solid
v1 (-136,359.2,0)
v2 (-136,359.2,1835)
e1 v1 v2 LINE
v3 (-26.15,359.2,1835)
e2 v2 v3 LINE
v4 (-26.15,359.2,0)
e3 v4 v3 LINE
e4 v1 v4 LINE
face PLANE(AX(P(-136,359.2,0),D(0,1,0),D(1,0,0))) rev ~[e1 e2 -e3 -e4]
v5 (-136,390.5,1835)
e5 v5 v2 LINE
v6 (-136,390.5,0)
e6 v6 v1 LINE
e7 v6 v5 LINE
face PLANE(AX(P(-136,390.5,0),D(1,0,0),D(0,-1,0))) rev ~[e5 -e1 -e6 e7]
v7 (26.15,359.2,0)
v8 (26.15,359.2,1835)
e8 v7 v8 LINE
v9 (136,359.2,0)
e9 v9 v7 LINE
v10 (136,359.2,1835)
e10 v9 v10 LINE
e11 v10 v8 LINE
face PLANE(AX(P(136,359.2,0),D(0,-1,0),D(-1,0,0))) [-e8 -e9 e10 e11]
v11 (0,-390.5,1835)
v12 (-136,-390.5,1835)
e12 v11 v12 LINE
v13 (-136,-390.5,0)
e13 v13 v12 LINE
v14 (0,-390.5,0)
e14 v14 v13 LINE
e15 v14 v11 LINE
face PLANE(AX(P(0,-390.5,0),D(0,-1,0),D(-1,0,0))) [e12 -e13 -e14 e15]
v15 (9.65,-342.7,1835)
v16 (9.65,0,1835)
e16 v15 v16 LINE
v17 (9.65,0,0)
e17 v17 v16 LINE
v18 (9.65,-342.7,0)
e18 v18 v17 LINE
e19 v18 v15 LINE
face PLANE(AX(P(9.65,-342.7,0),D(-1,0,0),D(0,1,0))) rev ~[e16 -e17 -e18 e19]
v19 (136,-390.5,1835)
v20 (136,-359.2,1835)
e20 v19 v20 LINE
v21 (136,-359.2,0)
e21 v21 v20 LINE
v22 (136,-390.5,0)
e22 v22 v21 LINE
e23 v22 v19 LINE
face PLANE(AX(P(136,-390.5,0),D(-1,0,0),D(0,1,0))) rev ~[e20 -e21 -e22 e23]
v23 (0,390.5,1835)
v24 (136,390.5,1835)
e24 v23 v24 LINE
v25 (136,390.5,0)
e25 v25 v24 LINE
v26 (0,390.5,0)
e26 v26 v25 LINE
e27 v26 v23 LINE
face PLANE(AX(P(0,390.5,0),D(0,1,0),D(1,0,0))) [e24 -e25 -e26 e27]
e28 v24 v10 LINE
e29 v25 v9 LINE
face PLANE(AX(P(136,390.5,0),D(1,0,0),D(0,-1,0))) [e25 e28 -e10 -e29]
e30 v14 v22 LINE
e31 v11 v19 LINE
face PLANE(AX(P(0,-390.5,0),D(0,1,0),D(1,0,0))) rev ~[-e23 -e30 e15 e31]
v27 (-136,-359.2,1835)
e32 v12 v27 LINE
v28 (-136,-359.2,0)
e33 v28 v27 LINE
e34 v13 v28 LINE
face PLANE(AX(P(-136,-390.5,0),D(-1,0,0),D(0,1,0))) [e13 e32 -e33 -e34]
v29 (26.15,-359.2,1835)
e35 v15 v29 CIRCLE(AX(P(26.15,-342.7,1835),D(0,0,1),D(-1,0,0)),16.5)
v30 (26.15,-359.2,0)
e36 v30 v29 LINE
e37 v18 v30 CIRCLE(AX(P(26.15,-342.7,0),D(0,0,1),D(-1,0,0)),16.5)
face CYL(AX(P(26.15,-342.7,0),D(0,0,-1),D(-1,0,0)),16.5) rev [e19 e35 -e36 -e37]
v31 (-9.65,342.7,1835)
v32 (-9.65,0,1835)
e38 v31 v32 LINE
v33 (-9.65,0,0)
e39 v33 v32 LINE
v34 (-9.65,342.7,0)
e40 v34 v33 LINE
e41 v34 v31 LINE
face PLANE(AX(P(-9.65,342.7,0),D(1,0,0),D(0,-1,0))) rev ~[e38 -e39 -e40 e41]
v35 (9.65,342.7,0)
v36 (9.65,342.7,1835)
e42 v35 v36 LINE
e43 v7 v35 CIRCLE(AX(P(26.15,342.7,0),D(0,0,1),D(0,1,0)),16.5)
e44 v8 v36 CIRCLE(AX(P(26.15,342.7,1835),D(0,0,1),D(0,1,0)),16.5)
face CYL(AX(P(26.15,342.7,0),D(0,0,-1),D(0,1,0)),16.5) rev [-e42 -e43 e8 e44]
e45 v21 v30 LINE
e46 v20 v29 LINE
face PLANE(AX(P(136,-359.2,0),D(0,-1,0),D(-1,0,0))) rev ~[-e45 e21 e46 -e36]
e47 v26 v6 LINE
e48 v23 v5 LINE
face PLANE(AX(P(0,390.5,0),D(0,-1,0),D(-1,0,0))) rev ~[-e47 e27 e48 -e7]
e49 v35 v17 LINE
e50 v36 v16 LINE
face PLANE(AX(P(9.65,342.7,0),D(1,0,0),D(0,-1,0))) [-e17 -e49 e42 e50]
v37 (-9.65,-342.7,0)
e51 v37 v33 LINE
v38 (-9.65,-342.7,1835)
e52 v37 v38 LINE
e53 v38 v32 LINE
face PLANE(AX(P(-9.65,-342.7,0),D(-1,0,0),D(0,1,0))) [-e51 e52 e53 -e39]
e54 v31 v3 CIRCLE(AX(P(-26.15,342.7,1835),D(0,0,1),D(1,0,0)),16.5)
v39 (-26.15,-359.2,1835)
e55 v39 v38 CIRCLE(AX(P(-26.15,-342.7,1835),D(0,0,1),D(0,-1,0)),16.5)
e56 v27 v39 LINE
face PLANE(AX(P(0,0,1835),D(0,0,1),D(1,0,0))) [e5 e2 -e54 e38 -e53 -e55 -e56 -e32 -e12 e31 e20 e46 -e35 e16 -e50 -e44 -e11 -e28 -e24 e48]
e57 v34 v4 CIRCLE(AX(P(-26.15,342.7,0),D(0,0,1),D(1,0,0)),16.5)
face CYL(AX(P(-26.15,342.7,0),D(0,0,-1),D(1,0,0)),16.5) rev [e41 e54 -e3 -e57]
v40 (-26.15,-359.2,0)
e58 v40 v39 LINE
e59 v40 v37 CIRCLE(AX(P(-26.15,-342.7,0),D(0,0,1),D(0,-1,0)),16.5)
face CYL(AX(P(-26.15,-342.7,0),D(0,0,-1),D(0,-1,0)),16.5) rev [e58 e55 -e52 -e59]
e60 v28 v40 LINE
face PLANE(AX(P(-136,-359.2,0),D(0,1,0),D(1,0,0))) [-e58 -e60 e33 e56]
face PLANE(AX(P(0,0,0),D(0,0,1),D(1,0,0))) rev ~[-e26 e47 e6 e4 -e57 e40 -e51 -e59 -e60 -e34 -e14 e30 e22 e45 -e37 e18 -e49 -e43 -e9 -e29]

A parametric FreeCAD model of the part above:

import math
import FreeCAD as App
import Part
import Sketcher
Q = App.Units.Quantity

doc = App.newDocument("Part")
body = doc.addObject("PartDesign::Body", "Body")

sketch1 = body.newObject("Sketcher::SketchObject", "Sketch")
sketch1.AttachmentSupport = (doc.getObject("XY_Plane"), [""])
sketch1.MapMode = "FlatFace"
sketch1.addGeometry(Part.LineSegment(App.Vector(-136, -359.2, 0), App.Vector(-136, -390.5, 0)), False)
sketch1.addGeometry(Part.LineSegment(App.Vector(-136, -390.5, 0), App.Vector(136, -390.5, 0)), False)
sketch1.addGeometry(Part.LineSegment(App.Vector(136, -390.5, 0), App.Vector(136, -359.2, 0)), False)
sketch1.addGeometry(Part.LineSegment(App.Vector(136, -359.2, 0), App.Vector(26.15, -359.2, 0)), False)
sketch1.addGeometry(Part.ArcOfCircle(Part.Circle(App.Vector(26.15, -342.7, 0), App.Vector(0, 0, 1), 16.5), math.radians(180), math.radians(270)), False)
sketch1.addGeometry(Part.LineSegment(App.Vector(9.65, -342.7, 0), App.Vector(9.65, 342.7, 0)), False)
sketch1.addGeometry(Part.ArcOfCircle(Part.Circle(App.Vector(26.15, 342.7, 0), App.Vector(0, 0, 1), 16.5), math.radians(90), math.radians(180)), False)
sketch1.addGeometry(Part.LineSegment(App.Vector(26.15, 359.2, 0), App.Vector(136, 359.2, 0)), False)
sketch1.addGeometry(Part.LineSegment(App.Vector(136, 359.2, 0), App.Vector(136, 390.5, 0)), False)
sketch1.addGeometry(Part.LineSegment(App.Vector(136, 390.5, 0), App.Vector(-136, 390.5, 0)), False)
sketch1.addGeometry(Part.LineSegment(App.Vector(-136, 390.5, 0), App.Vector(-136, 359.2, 0)), False)
sketch1.addGeometry(Part.LineSegment(App.Vector(-136, 359.2, 0), App.Vector(-26.15, 359.2, 0)), False)
sketch1.addGeometry(Part.ArcOfCircle(Part.Circle(App.Vector(-26.15, 342.7, 0), App.Vector(0, 0, 1), 16.5), math.radians(0), math.radians(90)), False)
sketch1.addGeometry(Part.LineSegment(App.Vector(-9.65, 342.7, 0), App.Vector(-9.65, -342.7, 0)), False)
sketch1.addGeometry(Part.ArcOfCircle(Part.Circle(App.Vector(-26.15, -342.7, 0), App.Vector(0, 0, 1), 16.5), math.radians(-90), math.radians(0)), False)
sketch1.addGeometry(Part.LineSegment(App.Vector(-26.15, -359.2, 0), App.Vector(-136, -359.2, 0)), False)
sketch1.addConstraint(Sketcher.Constraint("Coincident", 0, 2, 1, 1))
sketch1.addConstraint(Sketcher.Constraint("Coincident", 1, 2, 2, 1))
sketch1.addConstraint(Sketcher.Constraint("Coincident", 2, 2, 3, 1))
sketch1.addConstraint(Sketcher.Constraint("Tangent", 3, 2, 4, 2))
sketch1.addConstraint(Sketcher.Constraint("Tangent", 4, 1, 5, 1))
sketch1.addConstraint(Sketcher.Constraint("Tangent", 5, 2, 6, 2))
sketch1.addConstraint(Sketcher.Constraint("Tangent", 6, 1, 7, 1))
sketch1.addConstraint(Sketcher.Constraint("Coincident", 7, 2, 8, 1))
sketch1.addConstraint(Sketcher.Constraint("Coincident", 8, 2, 9, 1))
sketch1.addConstraint(Sketcher.Constraint("Coincident", 9, 2, 10, 1))
sketch1.addConstraint(Sketcher.Constraint("Coincident", 10, 2, 11, 1))
sketch1.addConstraint(Sketcher.Constraint("Tangent", 11, 2, 12, 2))
sketch1.addConstraint(Sketcher.Constraint("Tangent", 12, 1, 13, 1))
sketch1.addConstraint(Sketcher.Constraint("Tangent", 13, 2, 14, 2))
sketch1.addConstraint(Sketcher.Constraint("Tangent", 14, 1, 15, 1))
sketch1.addConstraint(Sketcher.Constraint("Coincident", 15, 2, 0, 1))
sketch1.addConstraint(Sketcher.Constraint("Vertical", 0))
sketch1.addConstraint(Sketcher.Constraint("Horizontal", 1))
sketch1.addConstraint(Sketcher.Constraint("Vertical", 2))
sketch1.addConstraint(Sketcher.Constraint("Horizontal", 3))
sketch1.addConstraint(Sketcher.Constraint("Vertical", 5))
sketch1.addConstraint(Sketcher.Constraint("Horizontal", 7))
sketch1.addConstraint(Sketcher.Constraint("Vertical", 8))
sketch1.addConstraint(Sketcher.Constraint("Horizontal", 9))
sketch1.addConstraint(Sketcher.Constraint("Vertical", 10))
sketch1.addConstraint(Sketcher.Constraint("Horizontal", 11))
sketch1.addConstraint(Sketcher.Constraint("Vertical", 13))
sketch1.addConstraint(Sketcher.Constraint("Horizontal", 15))
sketch1.addConstraint(Sketcher.Constraint("Equal", 4, 6))
sketch1.addConstraint(Sketcher.Constraint("Equal", 6, 12))
sketch1.addConstraint(Sketcher.Constraint("Equal", 12, 14))
sketch1.addConstraint(Sketcher.Constraint("Symmetric", 4, 3, 12, 3, -1, 1))
sketch1.addConstraint(Sketcher.Constraint("Symmetric", 0, 2, 8, 2, -1, 1))
sketch1.addConstraint(Sketcher.Constraint("Symmetric", 7, 2, 10, 2, -2))
sketch1.addConstraint(Sketcher.Constraint("Symmetric", 2, 2, 15, 2, -2))
sketch1.addConstraint(Sketcher.Constraint("Radius", 4, Q("16.5 mm")))
sketch1.addConstraint(Sketcher.Constraint("DistanceY", 0, 2, 0, 1, Q("31.3 mm")))
sketch1.addConstraint(Sketcher.Constraint("DistanceX", 0, 2, -1, 1, Q("136 mm")))
sketch1.addConstraint(Sketcher.Constraint("DistanceY", 0, 2, -1, 1, Q("390.5 mm")))
sketch1.addConstraint(Sketcher.Constraint("DistanceX", -1, 1, 4, 1, Q("9.65 mm")))
pad1 = body.newObject("PartDesign::Pad", "Pad")
pad1.Profile = sketch1
pad1.Length = 1835

doc.recompute()
